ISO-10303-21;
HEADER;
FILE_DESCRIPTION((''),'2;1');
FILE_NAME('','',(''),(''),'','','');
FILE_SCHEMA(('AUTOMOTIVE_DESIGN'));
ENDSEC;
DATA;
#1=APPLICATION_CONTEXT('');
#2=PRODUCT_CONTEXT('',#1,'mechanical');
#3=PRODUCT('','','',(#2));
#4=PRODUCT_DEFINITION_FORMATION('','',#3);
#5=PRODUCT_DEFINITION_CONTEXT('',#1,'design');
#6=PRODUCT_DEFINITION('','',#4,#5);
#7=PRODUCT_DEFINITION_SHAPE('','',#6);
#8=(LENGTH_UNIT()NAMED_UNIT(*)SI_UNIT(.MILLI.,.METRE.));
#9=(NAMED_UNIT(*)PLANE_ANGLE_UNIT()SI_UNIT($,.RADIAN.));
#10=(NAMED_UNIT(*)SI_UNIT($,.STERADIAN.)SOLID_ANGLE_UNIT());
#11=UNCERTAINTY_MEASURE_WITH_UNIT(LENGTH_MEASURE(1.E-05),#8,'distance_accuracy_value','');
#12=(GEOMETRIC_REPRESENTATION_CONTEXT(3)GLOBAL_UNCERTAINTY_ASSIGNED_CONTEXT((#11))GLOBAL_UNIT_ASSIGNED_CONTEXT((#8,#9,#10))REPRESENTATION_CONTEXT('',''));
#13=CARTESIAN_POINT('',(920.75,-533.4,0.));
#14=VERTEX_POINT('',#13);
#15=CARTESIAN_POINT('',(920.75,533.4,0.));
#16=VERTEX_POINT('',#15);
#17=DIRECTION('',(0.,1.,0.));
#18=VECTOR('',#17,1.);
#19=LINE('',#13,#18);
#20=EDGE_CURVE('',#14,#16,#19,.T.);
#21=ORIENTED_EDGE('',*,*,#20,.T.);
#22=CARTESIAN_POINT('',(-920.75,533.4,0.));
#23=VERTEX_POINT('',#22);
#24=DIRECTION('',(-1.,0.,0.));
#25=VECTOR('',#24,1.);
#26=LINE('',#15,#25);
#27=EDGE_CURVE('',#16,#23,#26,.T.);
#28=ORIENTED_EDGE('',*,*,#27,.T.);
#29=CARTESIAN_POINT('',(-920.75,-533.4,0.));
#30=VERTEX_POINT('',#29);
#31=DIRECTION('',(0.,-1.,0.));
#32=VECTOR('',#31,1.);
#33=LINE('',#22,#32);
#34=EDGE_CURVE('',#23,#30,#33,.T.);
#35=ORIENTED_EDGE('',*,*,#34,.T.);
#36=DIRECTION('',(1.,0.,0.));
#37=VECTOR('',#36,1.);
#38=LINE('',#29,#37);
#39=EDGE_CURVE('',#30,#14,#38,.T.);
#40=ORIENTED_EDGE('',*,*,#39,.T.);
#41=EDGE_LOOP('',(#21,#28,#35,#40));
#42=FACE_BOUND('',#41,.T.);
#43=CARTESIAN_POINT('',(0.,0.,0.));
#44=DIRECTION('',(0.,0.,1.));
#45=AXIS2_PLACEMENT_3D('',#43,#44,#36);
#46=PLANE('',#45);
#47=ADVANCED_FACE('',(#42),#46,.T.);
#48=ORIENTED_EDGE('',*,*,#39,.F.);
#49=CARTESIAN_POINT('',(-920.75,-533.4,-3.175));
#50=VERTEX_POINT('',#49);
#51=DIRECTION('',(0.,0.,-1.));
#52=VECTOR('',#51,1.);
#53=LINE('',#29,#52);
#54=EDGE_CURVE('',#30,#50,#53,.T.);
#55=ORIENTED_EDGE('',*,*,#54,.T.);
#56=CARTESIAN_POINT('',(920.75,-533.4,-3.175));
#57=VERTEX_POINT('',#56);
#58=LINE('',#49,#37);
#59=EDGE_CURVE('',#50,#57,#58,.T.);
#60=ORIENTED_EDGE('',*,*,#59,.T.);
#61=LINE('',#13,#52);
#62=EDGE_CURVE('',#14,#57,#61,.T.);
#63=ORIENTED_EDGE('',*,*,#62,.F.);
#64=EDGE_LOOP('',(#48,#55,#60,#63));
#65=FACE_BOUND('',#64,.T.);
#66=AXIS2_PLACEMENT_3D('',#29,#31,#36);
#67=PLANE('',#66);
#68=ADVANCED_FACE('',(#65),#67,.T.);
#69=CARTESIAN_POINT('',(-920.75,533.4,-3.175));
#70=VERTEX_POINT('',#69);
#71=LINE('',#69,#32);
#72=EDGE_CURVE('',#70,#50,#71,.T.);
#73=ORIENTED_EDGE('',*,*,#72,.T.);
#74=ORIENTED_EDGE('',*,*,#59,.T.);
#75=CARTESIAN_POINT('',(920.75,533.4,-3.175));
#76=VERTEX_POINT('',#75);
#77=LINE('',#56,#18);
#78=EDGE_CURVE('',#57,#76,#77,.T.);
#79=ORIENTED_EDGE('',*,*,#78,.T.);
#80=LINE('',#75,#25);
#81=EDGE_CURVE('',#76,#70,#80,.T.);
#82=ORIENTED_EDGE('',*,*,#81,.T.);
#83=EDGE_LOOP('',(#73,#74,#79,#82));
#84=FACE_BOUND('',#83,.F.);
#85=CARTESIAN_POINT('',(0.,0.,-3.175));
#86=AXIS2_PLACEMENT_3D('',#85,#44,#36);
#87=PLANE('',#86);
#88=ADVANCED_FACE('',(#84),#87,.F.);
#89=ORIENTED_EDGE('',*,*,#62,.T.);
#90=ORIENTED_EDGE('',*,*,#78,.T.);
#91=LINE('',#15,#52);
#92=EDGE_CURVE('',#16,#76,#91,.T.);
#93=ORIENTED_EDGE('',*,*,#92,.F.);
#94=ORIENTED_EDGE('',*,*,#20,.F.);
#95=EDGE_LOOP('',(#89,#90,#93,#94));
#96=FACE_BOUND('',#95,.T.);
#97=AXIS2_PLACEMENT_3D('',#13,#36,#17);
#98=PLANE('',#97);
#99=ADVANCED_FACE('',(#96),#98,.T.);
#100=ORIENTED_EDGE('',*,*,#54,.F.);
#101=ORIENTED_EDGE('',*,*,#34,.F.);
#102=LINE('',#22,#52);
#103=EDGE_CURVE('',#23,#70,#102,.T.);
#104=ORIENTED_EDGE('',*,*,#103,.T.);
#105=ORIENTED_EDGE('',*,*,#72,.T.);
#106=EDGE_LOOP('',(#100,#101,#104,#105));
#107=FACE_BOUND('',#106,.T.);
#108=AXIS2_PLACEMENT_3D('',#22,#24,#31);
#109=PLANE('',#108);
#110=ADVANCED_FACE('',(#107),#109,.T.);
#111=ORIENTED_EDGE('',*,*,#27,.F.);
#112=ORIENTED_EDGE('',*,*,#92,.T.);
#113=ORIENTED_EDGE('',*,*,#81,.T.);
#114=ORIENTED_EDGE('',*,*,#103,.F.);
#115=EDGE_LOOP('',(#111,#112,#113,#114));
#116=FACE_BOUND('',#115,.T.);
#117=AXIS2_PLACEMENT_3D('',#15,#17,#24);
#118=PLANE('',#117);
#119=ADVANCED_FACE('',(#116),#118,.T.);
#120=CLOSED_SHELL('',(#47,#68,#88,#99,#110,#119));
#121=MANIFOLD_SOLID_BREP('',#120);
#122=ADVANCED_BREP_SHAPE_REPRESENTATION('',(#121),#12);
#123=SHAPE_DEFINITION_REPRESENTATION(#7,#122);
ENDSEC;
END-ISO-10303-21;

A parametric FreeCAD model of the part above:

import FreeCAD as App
import Part
import Sketcher
Q = App.Units.Quantity


def add_polygon(sketch, points):
    """Adds a closed chain of lines whose ends are joined by coincident constraints."""
    first, n = sketch.GeometryCount, len(points)
    for a, b in zip(points, points[1:] + points[:1]):
        sketch.addGeometry(Part.LineSegment(App.Vector(*a, 0), App.Vector(*b, 0)), False)
    for i in range(n):
        sketch.addConstraint(Sketcher.Constraint("Coincident", first + i, 2, first + (i + 1) % n, 1))

doc = App.newDocument("Part")
body = doc.addObject("PartDesign::Body", "Body")

# Sketch on XY plane
sketch1 = body.newObject("Sketcher::SketchObject", "Sketch")
sketch1.AttachmentSupport = (doc.getObject("XY_Plane"), [""])
sketch1.MapMode = "FlatFace"
add_polygon(sketch1, [(-921, 533), (-921, -533), (921, -533), (921, 533)])  # lines 0-3
sketch1.addConstraint(Sketcher.Constraint("Vertical", 0))
sketch1.addConstraint(Sketcher.Constraint("Horizontal", 1))
sketch1.addConstraint(Sketcher.Constraint("Vertical", 2))
sketch1.addConstraint(Sketcher.Constraint("Horizontal", 3))
sketch1.addConstraint(Sketcher.Constraint("Symmetric", 0, 2, 2, 2, -1, 1))
sketch1.addConstraint(Sketcher.Constraint("DistanceY", 0, 2, 0, 1, Q("42 in")))
sketch1.addConstraint(Sketcher.Constraint("DistanceX", 1, 1, 1, 2, Q("72.5 in")))
pad1 = body.newObject("PartDesign::Pad", "Pad")
pad1.Profile = sketch1
pad1.Length = Q("0.125 in")
pad1.Reversed = True

doc.recompute()
